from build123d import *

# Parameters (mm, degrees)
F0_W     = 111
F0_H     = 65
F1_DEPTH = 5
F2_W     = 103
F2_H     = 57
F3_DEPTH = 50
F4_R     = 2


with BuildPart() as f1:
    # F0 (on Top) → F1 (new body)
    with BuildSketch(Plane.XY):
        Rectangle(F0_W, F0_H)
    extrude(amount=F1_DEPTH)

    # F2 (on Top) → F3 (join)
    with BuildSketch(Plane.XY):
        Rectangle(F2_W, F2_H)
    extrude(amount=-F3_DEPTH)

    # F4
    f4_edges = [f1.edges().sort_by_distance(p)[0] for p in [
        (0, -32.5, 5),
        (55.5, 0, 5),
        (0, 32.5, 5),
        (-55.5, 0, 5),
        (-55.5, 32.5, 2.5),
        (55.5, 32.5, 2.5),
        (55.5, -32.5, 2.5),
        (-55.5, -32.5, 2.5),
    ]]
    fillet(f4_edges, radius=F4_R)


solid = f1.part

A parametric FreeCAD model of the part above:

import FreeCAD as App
import Part
import Sketcher

V = App.Vector
Q = App.Units.Quantity


def edges_at(feature, points):
    """Names of the edges that pass closest to the given points."""
    edges = feature.Shape.Edges
    near = lambda p: min(range(len(edges)), key=lambda i: edges[i].distToShape(Part.Vertex(*p))[0])
    return sorted({f"Edge{near(p) + 1}" for p in points})


def add_polygon(sketch, points):
    """Adds a closed chain of lines whose ends are joined by coincident constraints."""
    first, n = sketch.GeometryCount, len(points)
    for a, b in zip(points, points[1:] + points[:1]):
        sketch.addGeometry(Part.LineSegment(App.Vector(*a, 0), App.Vector(*b, 0)), False)
    for i in range(n):
        sketch.addConstraint(Sketcher.Constraint("Coincident", first + i, 2, first + (i + 1) % n, 1))

doc = App.newDocument("Part")
params = doc.addObject("Spreadsheet::Sheet", "Params")
for row, (alias, value) in enumerate([
    ("sketch1_width", "111 mm"),
    ("sketch1_height", "65 mm"),
    ("pad1_length", "5 mm"),
    ("sketch2_width", "103 mm"),
    ("sketch2_height", "57 mm"),
    ("pad2_length", "50 mm"),
    ("fillet_radius", "2 mm"),
], start=1):
    params.set(f"A{row}", alias)
    params.set(f"B{row}", "=" + value)
    params.setAlias(f"B{row}", alias)

body = doc.addObject("PartDesign::Body", "Body")

# Sketch on XY plane
sketch1 = body.newObject("Sketcher::SketchObject", "Sketch")
sketch1.AttachmentSupport = (doc.getObject("XY_Plane"), [""])
sketch1.MapMode = "FlatFace"
add_polygon(sketch1, [(-56, 32), (-56, -32), (56, -32), (56, 32)])  # lines 0-3
sketch1.addConstraint([
    Sketcher.Constraint("Vertical", 0),
    Sketcher.Constraint("Horizontal", 1),
    Sketcher.Constraint("Vertical", 2),
    Sketcher.Constraint("Horizontal", 3),
    Sketcher.Constraint("Symmetric", 0, 2, 2, 2, -1, 1),
    Sketcher.Constraint("DistanceX", 1, 1, 1, 2, Q("111 mm")),
    Sketcher.Constraint("DistanceY", 0, 2, 0, 1, Q("65 mm")),
])
sketch1.setExpression("Constraints[9]", "Params.sketch1_width")
sketch1.setExpression("Constraints[10]", "Params.sketch1_height")
pad1 = body.newObject("PartDesign::Pad", "Pad")
pad1.Profile = sketch1
pad1.setExpression("Length", "Params.pad1_length")

# Sketch on XY plane
sketch2 = body.newObject("Sketcher::SketchObject", "Sketch001")
sketch2.AttachmentSupport = (doc.getObject("XY_Plane"), [""])
sketch2.MapMode = "FlatFace"
add_polygon(sketch2, [(-52, 28), (-52, -28), (52, -28), (52, 28)])  # lines 0-3
sketch2.addConstraint([
    Sketcher.Constraint("Vertical", 0),
    Sketcher.Constraint("Horizontal", 1),
    Sketcher.Constraint("Vertical", 2),
    Sketcher.Constraint("Horizontal", 3),
    Sketcher.Constraint("Symmetric", 0, 2, 2, 2, -1, 1),
    Sketcher.Constraint("DistanceX", 1, 1, 1, 2, Q("103 mm")),
    Sketcher.Constraint("DistanceY", 0, 2, 0, 1, Q("57 mm")),
])
sketch2.setExpression("Constraints[9]", "Params.sketch2_width")
sketch2.setExpression("Constraints[10]", "Params.sketch2_height")
pad2 = body.newObject("PartDesign::Pad", "Pad001")
pad2.Profile = sketch2
pad2.setExpression("Length", "Params.pad2_length")
pad2.Reversed = True
doc.recompute()

fillet = body.newObject("PartDesign::Fillet", "Fillet")
fillet.Base = (pad2, edges_at(pad2, [
    (0, -32.5, 5),
    (55.5, 0, 5),
    (0, 32.5, 5),
    (-55.5, 0, 5),
    (-55.5, 32.5, 2.5),
    (55.5, 32.5, 2.5),
    (55.5, -32.5, 2.5),
    (-55.5, -32.5, 2.5),
]))
fillet.setExpression("Radius", "Params.fillet_radius")

doc.recompute()
